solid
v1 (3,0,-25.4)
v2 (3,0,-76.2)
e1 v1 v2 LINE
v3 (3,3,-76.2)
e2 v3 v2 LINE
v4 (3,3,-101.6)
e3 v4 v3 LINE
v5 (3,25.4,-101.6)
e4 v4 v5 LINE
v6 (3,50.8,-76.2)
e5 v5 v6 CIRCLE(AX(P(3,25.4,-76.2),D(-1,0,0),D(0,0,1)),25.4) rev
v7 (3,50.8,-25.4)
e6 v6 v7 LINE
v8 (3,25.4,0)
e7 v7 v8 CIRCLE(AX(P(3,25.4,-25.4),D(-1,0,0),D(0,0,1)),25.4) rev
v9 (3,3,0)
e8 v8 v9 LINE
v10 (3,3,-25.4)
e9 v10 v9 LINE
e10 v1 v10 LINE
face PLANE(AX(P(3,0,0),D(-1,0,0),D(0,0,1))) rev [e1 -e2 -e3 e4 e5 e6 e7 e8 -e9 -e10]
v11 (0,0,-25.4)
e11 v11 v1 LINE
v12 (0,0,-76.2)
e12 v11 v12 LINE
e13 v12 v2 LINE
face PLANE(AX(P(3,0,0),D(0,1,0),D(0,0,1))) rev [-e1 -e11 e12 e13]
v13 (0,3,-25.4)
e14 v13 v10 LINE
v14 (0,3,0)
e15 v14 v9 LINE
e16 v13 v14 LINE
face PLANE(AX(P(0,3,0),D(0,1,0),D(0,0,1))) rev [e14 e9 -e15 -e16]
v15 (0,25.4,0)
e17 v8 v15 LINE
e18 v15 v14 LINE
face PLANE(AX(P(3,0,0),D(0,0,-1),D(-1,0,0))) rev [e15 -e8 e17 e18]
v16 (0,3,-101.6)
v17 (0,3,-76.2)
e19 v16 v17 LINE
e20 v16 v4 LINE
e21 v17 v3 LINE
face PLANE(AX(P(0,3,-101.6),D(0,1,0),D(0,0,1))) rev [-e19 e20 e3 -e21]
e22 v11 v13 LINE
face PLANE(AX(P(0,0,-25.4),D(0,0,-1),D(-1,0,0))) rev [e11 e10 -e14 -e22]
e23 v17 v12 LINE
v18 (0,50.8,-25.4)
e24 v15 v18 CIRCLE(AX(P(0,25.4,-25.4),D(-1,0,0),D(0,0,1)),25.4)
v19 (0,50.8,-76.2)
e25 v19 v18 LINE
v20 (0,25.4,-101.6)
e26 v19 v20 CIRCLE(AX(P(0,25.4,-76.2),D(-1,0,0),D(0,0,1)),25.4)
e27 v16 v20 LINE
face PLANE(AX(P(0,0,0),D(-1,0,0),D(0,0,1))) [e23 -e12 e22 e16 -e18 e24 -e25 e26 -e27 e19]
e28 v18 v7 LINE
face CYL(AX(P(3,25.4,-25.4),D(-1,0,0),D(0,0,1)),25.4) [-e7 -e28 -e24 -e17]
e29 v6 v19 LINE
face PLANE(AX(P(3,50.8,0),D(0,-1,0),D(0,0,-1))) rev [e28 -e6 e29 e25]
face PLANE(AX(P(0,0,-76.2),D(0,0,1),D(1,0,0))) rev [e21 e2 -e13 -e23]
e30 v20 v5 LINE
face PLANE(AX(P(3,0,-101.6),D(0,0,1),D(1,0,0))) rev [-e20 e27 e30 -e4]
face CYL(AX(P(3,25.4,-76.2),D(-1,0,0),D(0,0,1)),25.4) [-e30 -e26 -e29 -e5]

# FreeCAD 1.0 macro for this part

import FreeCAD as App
import Part
import Sketcher
Q = App.Units.Quantity


def edges_at(feature, points):
    """Names of the edges that pass closest to the given points."""
    edges = feature.Shape.Edges
    near = lambda p: min(range(len(edges)), key=lambda i: edges[i].distToShape(Part.Vertex(*p))[0])
    return sorted({f"Edge{near(p) + 1}" for p in points})


def add_polygon(sketch, points):
    """Adds a closed chain of lines whose ends are joined by coincident constraints."""
    first, n = sketch.GeometryCount, len(points)
    for a, b in zip(points, points[1:] + points[:1]):
        sketch.addGeometry(Part.LineSegment(App.Vector(*a, 0), App.Vector(*b, 0)), False)
    for i in range(n):
        sketch.addConstraint(Sketcher.Constraint("Coincident", first + i, 2, first + (i + 1) % n, 1))

doc = App.newDocument("Part")
body = doc.addObject("PartDesign::Body", "Body")

# Sketch on YZ plane
sketch1 = doc.addObject("Sketcher::SketchObject", "Sketch")
body.addObject(sketch1)
sketch1.AttachmentSupport = (doc.YZ_Plane, [""])
sketch1.MapMode = "FlatFace"
add_polygon(sketch1, [(51, 0), (0, 0), (0, -102), (51, -102)])  # lines 0-3
sketch1.addConstraint(Sketcher.Constraint("Horizontal", 0))
sketch1.addConstraint(Sketcher.Constraint("Vertical", 1))
sketch1.addConstraint(Sketcher.Constraint("Horizontal", 2))
sketch1.addConstraint(Sketcher.Constraint("Vertical", 3))
sketch1.addConstraint(Sketcher.Constraint("Coincident", 0, 2, -1, 1))
sketch1.addConstraint(Sketcher.Constraint("DistanceX", 0, 2, 0, 1, Q("2 in")))
sketch1.addConstraint(Sketcher.Constraint("DistanceY", 1, 2, 1, 1, Q("4 in")))
pad1 = doc.addObject("PartDesign::Pad", "Pad")
body.addObject(pad1)
pad1.Profile = sketch1
pad1.Length = 3
doc.recompute()

fillet = doc.addObject("PartDesign::Fillet", "Fillet")
body.addObject(fillet)
fillet.Base = (pad1, edges_at(pad1, [(1.5, 50.8, 0), (1.5, 50.8, -101.6)]))
fillet.Radius = Q("1 in")

# Sketch on YZ plane
sketch2 = doc.addObject("Sketcher::SketchObject", "Sketch001")
body.addObject(sketch2)
sketch2.AttachmentSupport = (doc.YZ_Plane, [""])
sketch2.MapMode = "FlatFace"
sketch2.AttachmentOffset = App.Placement(App.Vector(0, 0, 3), App.Rotation())
add_polygon(sketch2, [(3, 0), (0, 0), (0, -25.4), (3, -25.4)])  # lines 0-3
add_polygon(sketch2, [(3, -76.2), (0, -76.2), (0, -101.6), (3, -101.6)])  # lines 4-7
sketch2.addConstraint(Sketcher.Constraint("Horizontal", 0))
sketch2.addConstraint(Sketcher.Constraint("Vertical", 1))
sketch2.addConstraint(Sketcher.Constraint("Horizontal", 2))
sketch2.addConstraint(Sketcher.Constraint("Vertical", 3))
sketch2.addConstraint(Sketcher.Constraint("Horizontal", 4))
sketch2.addConstraint(Sketcher.Constraint("Vertical", 5))
sketch2.addConstraint(Sketcher.Constraint("Horizontal", 6))
sketch2.addConstraint(Sketcher.Constraint("Vertical", 7))
sketch2.addConstraint(Sketcher.Constraint("Coincident", 0, 2, -1, 1))
sketch2.addConstraint(Sketcher.Constraint("PointOnObject", 4, 2, -2))
sketch2.addConstraint(Sketcher.Constraint("Vertical", 3, 2, 6, 2))
sketch2.addConstraint(Sketcher.Constraint("Equal", 3, 5))
sketch2.addConstraint(Sketcher.Constraint("DistanceY", 1, 2, 1, 1, Q("1 in")))
sketch2.addConstraint(Sketcher.Constraint("DistanceY", 4, 2, -1, 1, Q("3 in")))
sketch2.addConstraint(Sketcher.Constraint("DistanceX", 0, 2, 0, 1, 3.0))
pocket1 = doc.addObject("PartDesign::Pocket", "Pocket")
body.addObject(pocket1)
pocket1.Profile = sketch2
pocket1.Length = 3

doc.recompute()
